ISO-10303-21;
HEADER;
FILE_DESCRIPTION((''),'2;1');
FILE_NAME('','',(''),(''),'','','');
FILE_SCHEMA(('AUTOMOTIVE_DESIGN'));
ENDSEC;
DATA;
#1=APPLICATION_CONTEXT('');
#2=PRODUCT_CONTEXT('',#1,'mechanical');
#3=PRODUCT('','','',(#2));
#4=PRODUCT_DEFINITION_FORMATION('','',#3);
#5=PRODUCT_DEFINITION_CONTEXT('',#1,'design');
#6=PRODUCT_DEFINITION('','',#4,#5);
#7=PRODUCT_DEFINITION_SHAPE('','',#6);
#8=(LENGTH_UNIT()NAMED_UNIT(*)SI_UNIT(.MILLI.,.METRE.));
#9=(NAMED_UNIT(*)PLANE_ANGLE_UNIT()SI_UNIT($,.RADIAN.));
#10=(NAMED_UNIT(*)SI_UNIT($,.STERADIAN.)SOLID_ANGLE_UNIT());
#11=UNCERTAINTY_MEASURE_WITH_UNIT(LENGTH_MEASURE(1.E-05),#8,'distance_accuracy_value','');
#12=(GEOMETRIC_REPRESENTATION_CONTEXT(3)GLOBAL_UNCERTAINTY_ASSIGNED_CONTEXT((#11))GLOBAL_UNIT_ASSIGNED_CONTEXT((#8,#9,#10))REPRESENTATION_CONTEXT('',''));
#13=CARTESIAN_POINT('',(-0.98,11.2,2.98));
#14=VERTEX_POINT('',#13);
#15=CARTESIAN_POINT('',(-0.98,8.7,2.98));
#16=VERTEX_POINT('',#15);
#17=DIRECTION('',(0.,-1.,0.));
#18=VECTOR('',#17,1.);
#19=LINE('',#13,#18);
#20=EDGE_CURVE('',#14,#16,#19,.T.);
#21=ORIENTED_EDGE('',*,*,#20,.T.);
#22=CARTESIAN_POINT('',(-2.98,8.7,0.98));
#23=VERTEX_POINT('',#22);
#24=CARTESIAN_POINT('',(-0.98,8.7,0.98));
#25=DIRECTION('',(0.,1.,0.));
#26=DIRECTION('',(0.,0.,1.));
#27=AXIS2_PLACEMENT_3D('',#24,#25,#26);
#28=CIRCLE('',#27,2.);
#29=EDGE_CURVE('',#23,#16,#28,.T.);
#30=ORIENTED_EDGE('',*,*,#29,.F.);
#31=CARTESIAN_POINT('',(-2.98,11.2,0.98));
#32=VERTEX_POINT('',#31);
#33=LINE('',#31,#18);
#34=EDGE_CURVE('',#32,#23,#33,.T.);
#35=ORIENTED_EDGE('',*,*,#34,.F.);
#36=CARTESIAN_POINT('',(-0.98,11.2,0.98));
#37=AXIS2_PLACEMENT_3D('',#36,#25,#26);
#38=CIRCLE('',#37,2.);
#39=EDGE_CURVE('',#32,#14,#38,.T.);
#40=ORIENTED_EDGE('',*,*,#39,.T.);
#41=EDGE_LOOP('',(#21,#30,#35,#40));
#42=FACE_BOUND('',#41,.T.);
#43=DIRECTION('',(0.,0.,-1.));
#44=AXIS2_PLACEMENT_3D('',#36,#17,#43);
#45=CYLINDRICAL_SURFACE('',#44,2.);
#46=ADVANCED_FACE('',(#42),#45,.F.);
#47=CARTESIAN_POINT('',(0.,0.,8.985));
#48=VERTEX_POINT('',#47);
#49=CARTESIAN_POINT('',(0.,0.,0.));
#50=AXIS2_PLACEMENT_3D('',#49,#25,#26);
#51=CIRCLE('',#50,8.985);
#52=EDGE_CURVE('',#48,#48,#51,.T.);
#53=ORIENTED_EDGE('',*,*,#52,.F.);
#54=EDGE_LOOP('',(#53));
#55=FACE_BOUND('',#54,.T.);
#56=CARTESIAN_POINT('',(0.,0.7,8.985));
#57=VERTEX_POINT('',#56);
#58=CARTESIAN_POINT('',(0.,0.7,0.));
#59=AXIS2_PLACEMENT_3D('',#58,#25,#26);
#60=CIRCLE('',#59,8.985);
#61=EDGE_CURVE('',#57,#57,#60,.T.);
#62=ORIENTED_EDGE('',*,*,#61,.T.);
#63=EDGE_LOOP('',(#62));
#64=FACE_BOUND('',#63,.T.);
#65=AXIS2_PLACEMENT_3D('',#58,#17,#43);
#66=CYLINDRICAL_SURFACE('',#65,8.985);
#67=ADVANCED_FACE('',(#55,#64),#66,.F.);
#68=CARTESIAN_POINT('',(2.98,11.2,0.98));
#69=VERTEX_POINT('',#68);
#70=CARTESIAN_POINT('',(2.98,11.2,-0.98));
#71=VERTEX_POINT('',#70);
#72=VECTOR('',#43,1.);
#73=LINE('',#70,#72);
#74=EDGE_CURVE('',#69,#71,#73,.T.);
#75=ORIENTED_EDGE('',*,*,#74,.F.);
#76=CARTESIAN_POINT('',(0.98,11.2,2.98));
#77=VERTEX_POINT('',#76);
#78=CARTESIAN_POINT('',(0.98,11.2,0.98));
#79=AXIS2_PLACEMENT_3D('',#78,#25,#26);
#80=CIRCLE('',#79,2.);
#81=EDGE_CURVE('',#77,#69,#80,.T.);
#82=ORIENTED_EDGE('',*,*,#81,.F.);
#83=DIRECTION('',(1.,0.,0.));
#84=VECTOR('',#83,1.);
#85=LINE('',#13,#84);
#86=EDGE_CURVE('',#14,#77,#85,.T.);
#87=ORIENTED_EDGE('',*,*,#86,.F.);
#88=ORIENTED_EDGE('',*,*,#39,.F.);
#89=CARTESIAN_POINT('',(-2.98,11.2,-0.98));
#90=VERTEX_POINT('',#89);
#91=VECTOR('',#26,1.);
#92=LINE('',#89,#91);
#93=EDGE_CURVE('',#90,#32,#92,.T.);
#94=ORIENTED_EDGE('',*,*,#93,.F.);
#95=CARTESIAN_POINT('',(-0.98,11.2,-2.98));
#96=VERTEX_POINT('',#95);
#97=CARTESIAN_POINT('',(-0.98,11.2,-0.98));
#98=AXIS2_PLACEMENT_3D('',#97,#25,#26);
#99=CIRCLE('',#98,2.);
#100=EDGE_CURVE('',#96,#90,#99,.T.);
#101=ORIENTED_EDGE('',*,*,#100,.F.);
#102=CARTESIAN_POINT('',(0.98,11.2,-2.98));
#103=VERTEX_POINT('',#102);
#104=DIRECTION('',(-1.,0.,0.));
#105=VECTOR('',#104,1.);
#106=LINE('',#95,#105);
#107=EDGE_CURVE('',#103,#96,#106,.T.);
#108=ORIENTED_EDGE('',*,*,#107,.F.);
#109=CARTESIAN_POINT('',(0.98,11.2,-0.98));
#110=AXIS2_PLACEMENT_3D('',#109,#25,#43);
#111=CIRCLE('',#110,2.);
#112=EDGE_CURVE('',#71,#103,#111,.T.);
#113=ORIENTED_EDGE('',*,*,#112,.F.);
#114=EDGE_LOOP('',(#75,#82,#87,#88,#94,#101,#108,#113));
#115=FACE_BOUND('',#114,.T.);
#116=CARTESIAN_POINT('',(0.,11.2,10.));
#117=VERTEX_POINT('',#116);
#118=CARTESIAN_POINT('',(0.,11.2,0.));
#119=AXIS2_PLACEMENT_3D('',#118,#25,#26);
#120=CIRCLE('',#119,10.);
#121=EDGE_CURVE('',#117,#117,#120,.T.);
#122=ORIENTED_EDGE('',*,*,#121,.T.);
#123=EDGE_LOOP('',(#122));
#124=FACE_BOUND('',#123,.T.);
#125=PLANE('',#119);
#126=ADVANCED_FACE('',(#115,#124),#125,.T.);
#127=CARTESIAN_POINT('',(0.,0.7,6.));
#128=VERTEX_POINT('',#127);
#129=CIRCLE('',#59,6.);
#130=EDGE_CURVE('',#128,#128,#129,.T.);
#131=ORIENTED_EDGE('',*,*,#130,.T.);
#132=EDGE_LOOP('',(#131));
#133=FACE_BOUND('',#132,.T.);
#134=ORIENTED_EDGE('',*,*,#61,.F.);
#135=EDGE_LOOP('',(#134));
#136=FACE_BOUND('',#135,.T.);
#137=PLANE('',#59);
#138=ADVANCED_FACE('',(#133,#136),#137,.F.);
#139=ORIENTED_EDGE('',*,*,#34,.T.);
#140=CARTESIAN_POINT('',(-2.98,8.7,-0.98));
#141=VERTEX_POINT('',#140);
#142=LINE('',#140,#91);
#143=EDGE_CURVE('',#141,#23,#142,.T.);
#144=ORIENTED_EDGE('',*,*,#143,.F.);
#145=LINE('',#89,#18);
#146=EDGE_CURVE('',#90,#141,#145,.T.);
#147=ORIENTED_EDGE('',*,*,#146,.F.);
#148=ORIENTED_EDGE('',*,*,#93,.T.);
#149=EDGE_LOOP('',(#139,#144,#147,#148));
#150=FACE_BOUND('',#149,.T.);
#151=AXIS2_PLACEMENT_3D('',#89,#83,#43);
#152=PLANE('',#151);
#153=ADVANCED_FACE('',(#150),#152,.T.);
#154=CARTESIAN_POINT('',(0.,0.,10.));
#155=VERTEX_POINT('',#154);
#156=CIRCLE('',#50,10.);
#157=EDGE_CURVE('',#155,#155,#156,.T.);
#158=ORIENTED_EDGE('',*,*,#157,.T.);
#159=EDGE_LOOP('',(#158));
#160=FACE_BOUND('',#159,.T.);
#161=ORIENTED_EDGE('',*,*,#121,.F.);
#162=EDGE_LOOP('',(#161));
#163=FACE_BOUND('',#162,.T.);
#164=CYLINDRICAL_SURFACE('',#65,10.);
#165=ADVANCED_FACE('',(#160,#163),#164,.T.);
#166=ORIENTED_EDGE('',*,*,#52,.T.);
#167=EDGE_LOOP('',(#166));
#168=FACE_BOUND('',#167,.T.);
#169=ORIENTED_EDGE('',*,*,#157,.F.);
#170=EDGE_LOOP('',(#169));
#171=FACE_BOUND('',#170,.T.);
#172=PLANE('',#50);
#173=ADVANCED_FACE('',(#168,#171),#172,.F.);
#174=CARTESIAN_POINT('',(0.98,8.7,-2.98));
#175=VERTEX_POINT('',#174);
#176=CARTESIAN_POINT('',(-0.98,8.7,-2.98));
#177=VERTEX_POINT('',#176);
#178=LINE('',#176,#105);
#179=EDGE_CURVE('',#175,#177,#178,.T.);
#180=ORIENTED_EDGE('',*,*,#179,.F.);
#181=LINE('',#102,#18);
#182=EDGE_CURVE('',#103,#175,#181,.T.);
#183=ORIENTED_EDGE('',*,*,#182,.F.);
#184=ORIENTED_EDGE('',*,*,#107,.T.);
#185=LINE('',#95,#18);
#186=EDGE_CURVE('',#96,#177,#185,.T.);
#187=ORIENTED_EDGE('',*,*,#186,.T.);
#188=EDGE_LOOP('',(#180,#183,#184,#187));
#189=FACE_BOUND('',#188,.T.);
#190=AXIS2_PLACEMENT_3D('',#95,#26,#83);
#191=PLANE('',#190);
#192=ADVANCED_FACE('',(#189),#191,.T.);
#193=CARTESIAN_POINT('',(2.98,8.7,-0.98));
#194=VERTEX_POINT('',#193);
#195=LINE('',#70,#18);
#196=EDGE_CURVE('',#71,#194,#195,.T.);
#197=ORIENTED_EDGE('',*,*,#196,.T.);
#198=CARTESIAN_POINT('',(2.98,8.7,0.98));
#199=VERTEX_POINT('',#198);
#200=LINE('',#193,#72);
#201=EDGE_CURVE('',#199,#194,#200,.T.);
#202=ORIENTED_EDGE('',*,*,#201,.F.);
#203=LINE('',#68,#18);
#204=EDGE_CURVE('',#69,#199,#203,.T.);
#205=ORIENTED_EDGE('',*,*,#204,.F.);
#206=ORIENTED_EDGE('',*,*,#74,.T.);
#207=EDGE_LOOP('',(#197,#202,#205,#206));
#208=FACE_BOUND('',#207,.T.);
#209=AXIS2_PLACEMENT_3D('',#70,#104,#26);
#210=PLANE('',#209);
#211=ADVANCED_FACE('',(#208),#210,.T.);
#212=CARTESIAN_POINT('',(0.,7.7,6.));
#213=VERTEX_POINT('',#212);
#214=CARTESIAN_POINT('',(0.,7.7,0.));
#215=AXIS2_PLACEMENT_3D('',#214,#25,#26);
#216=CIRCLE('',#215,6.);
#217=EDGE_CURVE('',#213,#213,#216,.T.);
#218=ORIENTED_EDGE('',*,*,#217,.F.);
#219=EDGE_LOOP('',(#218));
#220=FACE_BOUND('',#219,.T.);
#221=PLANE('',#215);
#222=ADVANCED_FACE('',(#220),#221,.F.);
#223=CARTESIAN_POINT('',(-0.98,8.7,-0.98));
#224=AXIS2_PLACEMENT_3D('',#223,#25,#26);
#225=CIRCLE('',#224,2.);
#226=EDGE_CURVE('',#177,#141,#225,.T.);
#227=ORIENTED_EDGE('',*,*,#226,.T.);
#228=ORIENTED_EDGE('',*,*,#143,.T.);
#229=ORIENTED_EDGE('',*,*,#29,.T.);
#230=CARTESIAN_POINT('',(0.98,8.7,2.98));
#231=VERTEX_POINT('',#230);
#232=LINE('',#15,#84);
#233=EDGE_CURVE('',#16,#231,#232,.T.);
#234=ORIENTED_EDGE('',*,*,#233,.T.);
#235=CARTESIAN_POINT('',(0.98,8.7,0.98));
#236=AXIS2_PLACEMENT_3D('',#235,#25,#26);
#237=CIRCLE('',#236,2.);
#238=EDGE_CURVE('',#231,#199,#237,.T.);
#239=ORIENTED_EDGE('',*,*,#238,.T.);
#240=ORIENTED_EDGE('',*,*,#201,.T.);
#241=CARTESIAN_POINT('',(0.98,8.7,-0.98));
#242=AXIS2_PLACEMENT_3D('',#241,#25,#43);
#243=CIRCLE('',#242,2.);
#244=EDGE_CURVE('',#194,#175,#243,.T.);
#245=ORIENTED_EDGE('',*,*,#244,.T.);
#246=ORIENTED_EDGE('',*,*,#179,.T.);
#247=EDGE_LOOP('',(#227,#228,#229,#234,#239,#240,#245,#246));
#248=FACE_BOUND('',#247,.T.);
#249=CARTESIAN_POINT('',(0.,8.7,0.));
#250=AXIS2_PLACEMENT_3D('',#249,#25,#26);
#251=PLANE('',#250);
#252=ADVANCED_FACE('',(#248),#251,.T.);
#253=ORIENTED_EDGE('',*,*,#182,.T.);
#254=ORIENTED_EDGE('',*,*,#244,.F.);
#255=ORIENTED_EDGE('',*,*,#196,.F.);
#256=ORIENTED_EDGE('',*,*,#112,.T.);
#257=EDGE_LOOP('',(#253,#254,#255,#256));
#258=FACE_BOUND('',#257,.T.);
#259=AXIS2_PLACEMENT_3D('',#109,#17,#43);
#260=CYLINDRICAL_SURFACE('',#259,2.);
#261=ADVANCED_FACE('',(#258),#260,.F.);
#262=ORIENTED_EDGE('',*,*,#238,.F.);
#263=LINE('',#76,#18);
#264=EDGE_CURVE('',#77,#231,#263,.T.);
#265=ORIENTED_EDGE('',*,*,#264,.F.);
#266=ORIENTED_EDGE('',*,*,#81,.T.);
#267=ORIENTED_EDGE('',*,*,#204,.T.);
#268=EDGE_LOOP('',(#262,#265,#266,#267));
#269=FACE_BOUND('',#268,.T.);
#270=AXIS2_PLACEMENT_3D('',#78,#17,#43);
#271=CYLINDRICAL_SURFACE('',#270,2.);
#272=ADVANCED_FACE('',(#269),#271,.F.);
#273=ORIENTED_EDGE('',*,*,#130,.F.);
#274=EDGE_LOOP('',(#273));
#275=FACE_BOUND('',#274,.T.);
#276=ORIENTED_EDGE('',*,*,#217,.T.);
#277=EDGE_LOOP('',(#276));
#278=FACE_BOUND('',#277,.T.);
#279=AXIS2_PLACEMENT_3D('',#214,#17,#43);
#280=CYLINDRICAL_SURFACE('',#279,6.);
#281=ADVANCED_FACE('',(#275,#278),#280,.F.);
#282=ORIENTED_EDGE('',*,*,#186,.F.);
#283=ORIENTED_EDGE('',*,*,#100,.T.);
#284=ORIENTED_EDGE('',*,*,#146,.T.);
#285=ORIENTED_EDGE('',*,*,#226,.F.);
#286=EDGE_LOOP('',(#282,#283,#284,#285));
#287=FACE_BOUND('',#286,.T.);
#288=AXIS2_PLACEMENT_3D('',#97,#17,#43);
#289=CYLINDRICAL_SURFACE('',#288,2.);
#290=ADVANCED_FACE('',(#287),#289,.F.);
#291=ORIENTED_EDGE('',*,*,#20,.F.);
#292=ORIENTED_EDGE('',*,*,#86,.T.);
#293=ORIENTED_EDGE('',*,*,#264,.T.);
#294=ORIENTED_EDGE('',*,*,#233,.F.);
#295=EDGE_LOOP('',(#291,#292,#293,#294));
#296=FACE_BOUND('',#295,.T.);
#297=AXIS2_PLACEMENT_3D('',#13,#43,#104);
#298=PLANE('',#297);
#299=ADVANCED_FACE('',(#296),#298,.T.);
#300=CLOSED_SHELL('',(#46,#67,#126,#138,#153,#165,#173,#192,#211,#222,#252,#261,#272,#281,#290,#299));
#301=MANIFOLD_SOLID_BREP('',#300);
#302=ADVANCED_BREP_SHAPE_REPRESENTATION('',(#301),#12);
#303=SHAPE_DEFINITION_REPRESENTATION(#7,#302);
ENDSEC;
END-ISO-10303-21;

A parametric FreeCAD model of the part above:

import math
import FreeCAD as App
import Part
import Sketcher
from FreeCAD import Vector
Q = App.Units.Quantity

doc = App.newDocument("Part")
body = doc.addObject("PartDesign::Body", "Body")

# Sketch on XZ plane
sketch1 = body.newObject("Sketcher::SketchObject", "Sketch")
sketch1.AttachmentSupport = (doc.getObject("XZ_Plane"), [""])
sketch1.MapMode = "FlatFace"
sketch1.addGeometry(Part.Circle(Vector(0, 0, 0), Vector(0, 0, 1), 10), False)
sketch1.addGeometry(Part.Circle(Vector(0, 0, 0), Vector(0, 0, 1), 9), False)
sketch1.addConstraint(Sketcher.Constraint("Coincident", 0, 3, -1, 1))
sketch1.addConstraint(Sketcher.Constraint("Coincident", 1, 3, -1, 1))
sketch1.addConstraint(Sketcher.Constraint("Diameter", 0, Q("20 mm")))
sketch1.addConstraint(Sketcher.Constraint("Diameter", 1, Q("17.97 mm")))
pad1 = body.newObject("PartDesign::Pad", "Pad")
pad1.Profile = sketch1
pad1.Length = 0.7
pad1.Reversed = True

# Sketch on XZ plane
sketch2 = body.newObject("Sketcher::SketchObject", "Sketch001")
sketch2.AttachmentSupport = (doc.getObject("XZ_Plane"), [""])
sketch2.MapMode = "FlatFace"
sketch2.AttachmentOffset = App.Placement(Vector(0, 0, -0.7), App.Rotation())
sketch2.addGeometry(Part.Circle(Vector(0, 0, 0), Vector(0, 0, 1), 10), False)
sketch2.addGeometry(Part.Circle(Vector(0, 0, 0), Vector(0, 0, 1), 6), False)
sketch2.addConstraint(Sketcher.Constraint("Coincident", 0, 3, -1, 1))
sketch2.addConstraint(Sketcher.Constraint("Coincident", 1, 3, -1, 1))
sketch2.addConstraint(Sketcher.Constraint("Diameter", 0, Q("20 mm")))
sketch2.addConstraint(Sketcher.Constraint("Diameter", 1, Q("12 mm")))
pad2 = body.newObject("PartDesign::Pad", "Pad001")
pad2.Profile = sketch2
pad2.Length = 7
pad2.Reversed = True

# Sketch on XZ plane
sketch3 = body.newObject("Sketcher::SketchObject", "Sketch002")
sketch3.AttachmentSupport = (doc.getObject("XZ_Plane"), [""])
sketch3.MapMode = "FlatFace"
sketch3.AttachmentOffset = App.Placement(Vector(0, 0, -7.7), App.Rotation())
sketch3.addGeometry(Part.Circle(Vector(0, 0, 0), Vector(0, 0, 1), 10), False)
sketch3.addConstraint(Sketcher.Constraint("Coincident", 0, 3, -1, 1))
sketch3.addConstraint(Sketcher.Constraint("Diameter", 0, Q("20 mm")))
pad3 = body.newObject("PartDesign::Pad", "Pad002")
pad3.Profile = sketch3
pad3.Length = 1
pad3.Reversed = True

# Sketch on XZ plane
sketch4 = body.newObject("Sketcher::SketchObject", "Sketch003")
sketch4.AttachmentSupport = (doc.getObject("XZ_Plane"), [""])
sketch4.MapMode = "FlatFace"
sketch4.AttachmentOffset = App.Placement(Vector(0, 0, -8.7), App.Rotation())
sketch4.addGeometry(Part.Circle(Vector(0, 0, 0), Vector(0, 0, 1), 10), False)
sketch4.addGeometry(Part.ArcOfCircle(Part.Circle(Vector(-1, -1, 0), Vector(0, 0, 1), 2), math.radians(-180), math.radians(-90)), False)
sketch4.addGeometry(Part.LineSegment(Vector(-1, -3, 0), Vector(1, -3, 0)), False)
sketch4.addGeometry(Part.ArcOfCircle(Part.Circle(Vector(1, -1, 0), Vector(0, 0, 1), 2), math.radians(-90), math.radians(0)), False)
sketch4.addGeometry(Part.LineSegment(Vector(3, -1, 0), Vector(3, 1, 0)), False)
sketch4.addGeometry(Part.ArcOfCircle(Part.Circle(Vector(1, 1, 0), Vector(0, 0, 1), 2), math.radians(0), math.radians(90)), False)
sketch4.addGeometry(Part.LineSegment(Vector(1, 3, 0), Vector(-1, 3, 0)), False)
sketch4.addGeometry(Part.ArcOfCircle(Part.Circle(Vector(-1, 1, 0), Vector(0, 0, 1), 2), math.radians(90), math.radians(180)), False)
sketch4.addGeometry(Part.LineSegment(Vector(-3, 1, 0), Vector(-3, -1, 0)), False)
sketch4.addConstraint(Sketcher.Constraint("Tangent", 1, 2, 2, 1))
sketch4.addConstraint(Sketcher.Constraint("Tangent", 2, 2, 3, 1))
sketch4.addConstraint(Sketcher.Constraint("Tangent", 3, 2, 4, 1))
sketch4.addConstraint(Sketcher.Constraint("Tangent", 4, 2, 5, 1))
sketch4.addConstraint(Sketcher.Constraint("Tangent", 5, 2, 6, 1))
sketch4.addConstraint(Sketcher.Constraint("Tangent", 6, 2, 7, 1))
sketch4.addConstraint(Sketcher.Constraint("Tangent", 7, 2, 8, 1))
sketch4.addConstraint(Sketcher.Constraint("Tangent", 8, 2, 1, 1))
sketch4.addConstraint(Sketcher.Constraint("Horizontal", 2))
sketch4.addConstraint(Sketcher.Constraint("Vertical", 4))
sketch4.addConstraint(Sketcher.Constraint("Horizontal", 6))
sketch4.addConstraint(Sketcher.Constraint("Vertical", 8))
sketch4.addConstraint(Sketcher.Constraint("Coincident", 0, 3, -1, 1))
sketch4.addConstraint(Sketcher.Constraint("Equal", 1, 3))
sketch4.addConstraint(Sketcher.Constraint("Equal", 3, 5))
sketch4.addConstraint(Sketcher.Constraint("Equal", 5, 7))
sketch4.addConstraint(Sketcher.Constraint("Symmetric", 1, 3, 5, 3, -1, 1))
sketch4.addConstraint(Sketcher.Constraint("Equal", 6, 4))
sketch4.addConstraint(Sketcher.Constraint("Diameter", 0, Q("20 mm")))
sketch4.addConstraint(Sketcher.Constraint("Radius", 1, Q("2 mm")))
sketch4.addConstraint(Sketcher.Constraint("DistanceX", 2, 1, 2, 2, Q("1.96 mm")))
pad4 = body.newObject("PartDesign::Pad", "Pad003")
pad4.Profile = sketch4
pad4.Length = 2.5
pad4.Reversed = True

doc.recompute()
